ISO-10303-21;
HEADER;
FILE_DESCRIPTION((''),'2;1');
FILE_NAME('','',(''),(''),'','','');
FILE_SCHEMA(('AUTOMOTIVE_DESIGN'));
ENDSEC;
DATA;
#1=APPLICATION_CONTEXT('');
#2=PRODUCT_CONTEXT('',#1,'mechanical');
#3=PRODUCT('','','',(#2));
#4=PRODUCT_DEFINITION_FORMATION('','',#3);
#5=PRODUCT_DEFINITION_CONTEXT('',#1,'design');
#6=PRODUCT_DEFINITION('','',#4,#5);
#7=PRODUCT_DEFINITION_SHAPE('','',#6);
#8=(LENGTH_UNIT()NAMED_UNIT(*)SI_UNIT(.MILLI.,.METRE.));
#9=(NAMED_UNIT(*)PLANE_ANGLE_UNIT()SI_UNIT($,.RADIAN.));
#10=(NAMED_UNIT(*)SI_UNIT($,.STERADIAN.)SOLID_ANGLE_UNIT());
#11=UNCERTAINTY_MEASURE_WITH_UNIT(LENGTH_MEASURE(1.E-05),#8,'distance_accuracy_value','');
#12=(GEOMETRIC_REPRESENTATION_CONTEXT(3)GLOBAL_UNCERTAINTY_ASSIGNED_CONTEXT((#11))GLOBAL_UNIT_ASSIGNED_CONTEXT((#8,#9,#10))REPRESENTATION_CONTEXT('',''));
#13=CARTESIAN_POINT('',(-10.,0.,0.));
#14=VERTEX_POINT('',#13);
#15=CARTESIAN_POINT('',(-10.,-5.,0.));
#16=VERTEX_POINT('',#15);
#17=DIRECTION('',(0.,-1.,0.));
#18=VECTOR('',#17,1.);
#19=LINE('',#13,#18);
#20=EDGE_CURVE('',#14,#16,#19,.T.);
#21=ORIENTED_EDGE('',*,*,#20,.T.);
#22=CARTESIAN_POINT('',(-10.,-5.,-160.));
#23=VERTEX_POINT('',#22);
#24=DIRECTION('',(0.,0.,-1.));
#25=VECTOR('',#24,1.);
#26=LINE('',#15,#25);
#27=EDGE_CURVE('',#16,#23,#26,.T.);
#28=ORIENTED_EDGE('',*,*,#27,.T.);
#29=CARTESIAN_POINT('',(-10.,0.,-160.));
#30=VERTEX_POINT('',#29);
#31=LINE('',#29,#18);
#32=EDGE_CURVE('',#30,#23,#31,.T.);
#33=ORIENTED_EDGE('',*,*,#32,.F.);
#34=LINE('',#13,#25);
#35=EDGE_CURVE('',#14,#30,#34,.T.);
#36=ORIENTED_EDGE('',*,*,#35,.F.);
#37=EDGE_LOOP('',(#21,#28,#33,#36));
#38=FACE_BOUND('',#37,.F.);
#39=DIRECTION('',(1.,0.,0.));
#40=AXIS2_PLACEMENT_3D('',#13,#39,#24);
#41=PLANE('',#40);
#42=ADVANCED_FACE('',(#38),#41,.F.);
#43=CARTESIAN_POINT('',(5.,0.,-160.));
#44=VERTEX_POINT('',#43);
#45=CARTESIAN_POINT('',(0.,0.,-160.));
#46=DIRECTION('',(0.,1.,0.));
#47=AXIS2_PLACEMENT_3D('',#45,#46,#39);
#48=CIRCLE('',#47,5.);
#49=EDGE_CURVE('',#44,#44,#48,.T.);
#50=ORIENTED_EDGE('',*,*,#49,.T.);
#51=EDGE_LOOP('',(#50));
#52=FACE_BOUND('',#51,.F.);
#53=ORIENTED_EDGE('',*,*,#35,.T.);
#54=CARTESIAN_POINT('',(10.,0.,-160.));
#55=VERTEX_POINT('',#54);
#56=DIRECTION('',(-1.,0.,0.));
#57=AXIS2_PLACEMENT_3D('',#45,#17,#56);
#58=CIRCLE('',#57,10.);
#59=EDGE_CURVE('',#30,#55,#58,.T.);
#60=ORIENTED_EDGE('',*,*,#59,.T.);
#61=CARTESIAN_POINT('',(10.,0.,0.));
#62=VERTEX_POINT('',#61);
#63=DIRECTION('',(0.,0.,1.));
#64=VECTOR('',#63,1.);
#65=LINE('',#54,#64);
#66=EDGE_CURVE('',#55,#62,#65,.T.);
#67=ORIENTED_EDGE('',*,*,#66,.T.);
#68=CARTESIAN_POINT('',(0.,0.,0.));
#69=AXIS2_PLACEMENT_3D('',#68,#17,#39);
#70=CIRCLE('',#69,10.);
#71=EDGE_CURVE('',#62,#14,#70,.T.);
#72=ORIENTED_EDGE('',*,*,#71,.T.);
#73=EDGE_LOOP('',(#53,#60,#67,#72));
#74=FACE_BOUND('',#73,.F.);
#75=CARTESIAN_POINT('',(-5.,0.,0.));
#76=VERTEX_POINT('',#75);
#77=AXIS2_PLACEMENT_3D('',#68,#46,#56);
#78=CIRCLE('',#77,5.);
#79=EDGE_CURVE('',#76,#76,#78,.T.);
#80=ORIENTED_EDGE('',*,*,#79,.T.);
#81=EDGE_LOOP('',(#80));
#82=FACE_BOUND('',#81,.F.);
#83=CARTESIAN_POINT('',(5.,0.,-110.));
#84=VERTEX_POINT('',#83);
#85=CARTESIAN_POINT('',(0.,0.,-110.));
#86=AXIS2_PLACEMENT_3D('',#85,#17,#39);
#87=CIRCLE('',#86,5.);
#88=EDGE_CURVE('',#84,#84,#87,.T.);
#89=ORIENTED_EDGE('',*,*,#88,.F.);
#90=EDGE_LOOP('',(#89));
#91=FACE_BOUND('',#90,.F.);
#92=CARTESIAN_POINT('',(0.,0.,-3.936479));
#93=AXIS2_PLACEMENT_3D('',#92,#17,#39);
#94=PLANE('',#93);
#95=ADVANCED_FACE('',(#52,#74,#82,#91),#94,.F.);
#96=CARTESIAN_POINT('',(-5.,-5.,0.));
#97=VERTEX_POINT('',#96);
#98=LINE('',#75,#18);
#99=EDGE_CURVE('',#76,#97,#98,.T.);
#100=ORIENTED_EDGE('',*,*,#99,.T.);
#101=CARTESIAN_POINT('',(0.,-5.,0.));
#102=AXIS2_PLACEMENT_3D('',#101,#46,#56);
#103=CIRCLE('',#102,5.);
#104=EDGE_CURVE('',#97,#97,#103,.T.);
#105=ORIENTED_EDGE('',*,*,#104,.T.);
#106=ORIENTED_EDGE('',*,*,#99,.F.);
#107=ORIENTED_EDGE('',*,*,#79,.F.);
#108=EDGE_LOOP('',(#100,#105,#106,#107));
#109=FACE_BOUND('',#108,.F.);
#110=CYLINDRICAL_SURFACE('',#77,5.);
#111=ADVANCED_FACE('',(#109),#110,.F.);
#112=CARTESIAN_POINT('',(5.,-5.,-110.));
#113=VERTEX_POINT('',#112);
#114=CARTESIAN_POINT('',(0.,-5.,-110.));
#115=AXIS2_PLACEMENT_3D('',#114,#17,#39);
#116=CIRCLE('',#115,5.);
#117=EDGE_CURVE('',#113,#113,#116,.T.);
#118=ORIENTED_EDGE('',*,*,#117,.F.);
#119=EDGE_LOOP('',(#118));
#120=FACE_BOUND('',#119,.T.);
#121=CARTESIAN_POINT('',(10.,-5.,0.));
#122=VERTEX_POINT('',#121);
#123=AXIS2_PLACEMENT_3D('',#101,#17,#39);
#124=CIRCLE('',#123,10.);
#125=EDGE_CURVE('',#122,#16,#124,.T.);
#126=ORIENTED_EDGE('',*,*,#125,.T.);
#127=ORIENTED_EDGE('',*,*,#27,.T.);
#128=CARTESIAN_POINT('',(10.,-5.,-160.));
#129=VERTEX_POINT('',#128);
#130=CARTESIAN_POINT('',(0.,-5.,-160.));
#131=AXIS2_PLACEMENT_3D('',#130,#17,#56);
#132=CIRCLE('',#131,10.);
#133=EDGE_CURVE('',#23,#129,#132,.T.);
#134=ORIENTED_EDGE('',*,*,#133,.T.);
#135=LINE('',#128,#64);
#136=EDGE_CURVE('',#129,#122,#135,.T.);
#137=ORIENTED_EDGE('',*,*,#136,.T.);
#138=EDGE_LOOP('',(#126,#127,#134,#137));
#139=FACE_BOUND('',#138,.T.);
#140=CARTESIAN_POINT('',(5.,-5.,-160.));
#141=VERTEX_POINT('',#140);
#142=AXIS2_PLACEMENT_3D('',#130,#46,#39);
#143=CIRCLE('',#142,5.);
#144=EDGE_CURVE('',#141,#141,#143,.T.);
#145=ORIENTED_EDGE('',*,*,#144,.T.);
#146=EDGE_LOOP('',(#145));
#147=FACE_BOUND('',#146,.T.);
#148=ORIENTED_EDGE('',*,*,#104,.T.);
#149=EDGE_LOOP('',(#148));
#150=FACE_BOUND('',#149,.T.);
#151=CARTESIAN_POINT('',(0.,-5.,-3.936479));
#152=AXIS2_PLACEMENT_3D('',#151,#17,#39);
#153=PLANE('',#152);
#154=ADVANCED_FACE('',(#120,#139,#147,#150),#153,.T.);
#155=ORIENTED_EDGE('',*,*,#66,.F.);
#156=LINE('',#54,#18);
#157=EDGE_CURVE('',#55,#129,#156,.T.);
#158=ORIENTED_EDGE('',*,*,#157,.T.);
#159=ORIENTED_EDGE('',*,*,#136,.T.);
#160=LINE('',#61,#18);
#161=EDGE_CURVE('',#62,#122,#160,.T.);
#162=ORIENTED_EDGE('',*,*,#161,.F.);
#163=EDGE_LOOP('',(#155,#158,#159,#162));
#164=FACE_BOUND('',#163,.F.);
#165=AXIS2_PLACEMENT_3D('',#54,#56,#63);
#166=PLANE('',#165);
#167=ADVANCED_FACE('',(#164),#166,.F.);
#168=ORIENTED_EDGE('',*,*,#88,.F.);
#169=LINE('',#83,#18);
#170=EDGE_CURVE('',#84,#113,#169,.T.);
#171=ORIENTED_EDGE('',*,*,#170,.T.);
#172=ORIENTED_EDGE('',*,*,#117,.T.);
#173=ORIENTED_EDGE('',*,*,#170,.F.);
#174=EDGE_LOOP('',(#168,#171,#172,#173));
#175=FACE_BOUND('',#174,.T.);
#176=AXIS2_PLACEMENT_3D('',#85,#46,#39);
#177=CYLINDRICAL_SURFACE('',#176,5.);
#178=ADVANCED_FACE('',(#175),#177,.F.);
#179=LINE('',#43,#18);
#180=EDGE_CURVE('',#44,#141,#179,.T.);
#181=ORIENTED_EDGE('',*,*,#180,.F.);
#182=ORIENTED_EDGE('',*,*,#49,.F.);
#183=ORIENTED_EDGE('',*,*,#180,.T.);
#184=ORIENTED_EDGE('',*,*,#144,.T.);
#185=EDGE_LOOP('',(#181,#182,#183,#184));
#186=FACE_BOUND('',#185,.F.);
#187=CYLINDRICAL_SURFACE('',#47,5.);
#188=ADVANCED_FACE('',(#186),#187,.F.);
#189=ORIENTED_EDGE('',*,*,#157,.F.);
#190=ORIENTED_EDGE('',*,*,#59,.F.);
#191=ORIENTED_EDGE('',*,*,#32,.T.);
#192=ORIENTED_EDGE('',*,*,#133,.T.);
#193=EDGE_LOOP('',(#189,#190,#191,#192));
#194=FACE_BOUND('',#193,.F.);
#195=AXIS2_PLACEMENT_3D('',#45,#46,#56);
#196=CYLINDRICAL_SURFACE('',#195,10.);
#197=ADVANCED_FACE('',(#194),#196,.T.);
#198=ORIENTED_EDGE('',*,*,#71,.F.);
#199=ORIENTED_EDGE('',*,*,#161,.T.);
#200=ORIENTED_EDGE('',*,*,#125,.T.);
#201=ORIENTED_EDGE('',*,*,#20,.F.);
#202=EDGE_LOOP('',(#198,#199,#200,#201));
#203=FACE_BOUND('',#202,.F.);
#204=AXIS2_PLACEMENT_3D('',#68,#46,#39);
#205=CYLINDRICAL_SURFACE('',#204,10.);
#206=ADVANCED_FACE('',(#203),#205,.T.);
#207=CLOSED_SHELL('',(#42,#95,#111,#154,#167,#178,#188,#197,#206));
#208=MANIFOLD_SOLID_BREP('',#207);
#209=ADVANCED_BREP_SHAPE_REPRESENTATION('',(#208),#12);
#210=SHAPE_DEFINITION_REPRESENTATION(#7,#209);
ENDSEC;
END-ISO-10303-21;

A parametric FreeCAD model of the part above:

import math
import FreeCAD as App
import Part
import Sketcher

V = App.Vector
Q = App.Units.Quantity

doc = App.newDocument("Part")
params = doc.addObject("Spreadsheet::Sheet", "Params")
for row, (alias, value) in enumerate([
    ("sketch1_diameter", "10 mm"),
    ("sketch1_radius", "10 mm"),
    ("sketch1_height", "160 mm"),
    ("pad1_length", "5 mm"),
], start=1):
    params.set(f"A{row}", alias)
    params.set(f"B{row}", "=" + value)
    params.setAlias(f"B{row}", alias)

body = doc.addObject("PartDesign::Body", "Body")

sketch1 = doc.addObject("Sketcher::SketchObject", "Sketch")
body.addObject(sketch1)
sketch1.AttachmentSupport = (doc.XZ_Plane, [""])
sketch1.MapMode = "FlatFace"
sketch1.addGeometry([
    Part.ArcOfCircle(Part.Circle(V(0, 0, 0), V(0, 0, 1), 10), math.radians(0), math.radians(180)),
    Part.LineSegment(V(-10, 0, 0), V(-10, -160, 0)),
    Part.ArcOfCircle(Part.Circle(V(0, -160, 0), V(0, 0, 1), 10), math.radians(180), math.radians(360)),
    Part.LineSegment(V(10, -160, 0), V(10, 0, 0)),
    Part.Circle(V(0, -110, 0), V(0, 0, 1), 5),
    Part.Circle(V(0, 0, 0), V(0, 0, 1), 5),
    Part.Circle(V(0, -160, 0), V(0, 0, 1), 5),
], False)
sketch1.addConstraint([
    Sketcher.Constraint("Tangent", 0, 2, 1, 1),
    Sketcher.Constraint("Tangent", 1, 2, 2, 1),
    Sketcher.Constraint("Tangent", 2, 2, 3, 1),
    Sketcher.Constraint("Tangent", 3, 2, 0, 1),
    Sketcher.Constraint("Vertical", 1),
    Sketcher.Constraint("Vertical", 3),
    Sketcher.Constraint("Coincident", 0, 3, -1, 1),
    Sketcher.Constraint("Coincident", 5, 3, -1, 1),
    Sketcher.Constraint("Coincident", 6, 3, 2, 3),
    Sketcher.Constraint("Equal", 4, 5),
    Sketcher.Constraint("Equal", 5, 6),
    Sketcher.Constraint("PointOnObject", 4, 3, -2),
    Sketcher.Constraint("Diameter", 4, Q("10 mm")),
    Sketcher.Constraint("Radius", 0, Q("10 mm")),
    Sketcher.Constraint("DistanceY", 1, 2, 1, 1, Q("160 mm")),
    Sketcher.Constraint("DistanceY", 4, 3, -1, 1, Q("110 mm")),
])
sketch1.setExpression("Constraints[12]", "Params.sketch1_diameter")
sketch1.setExpression("Constraints[13]", "Params.sketch1_radius")
sketch1.setExpression("Constraints[14]", "Params.sketch1_height")
pad1 = doc.addObject("PartDesign::Pad", "Pad")
body.addObject(pad1)
pad1.Profile = sketch1
pad1.setExpression("Length", "Params.pad1_length")

doc.recompute()
